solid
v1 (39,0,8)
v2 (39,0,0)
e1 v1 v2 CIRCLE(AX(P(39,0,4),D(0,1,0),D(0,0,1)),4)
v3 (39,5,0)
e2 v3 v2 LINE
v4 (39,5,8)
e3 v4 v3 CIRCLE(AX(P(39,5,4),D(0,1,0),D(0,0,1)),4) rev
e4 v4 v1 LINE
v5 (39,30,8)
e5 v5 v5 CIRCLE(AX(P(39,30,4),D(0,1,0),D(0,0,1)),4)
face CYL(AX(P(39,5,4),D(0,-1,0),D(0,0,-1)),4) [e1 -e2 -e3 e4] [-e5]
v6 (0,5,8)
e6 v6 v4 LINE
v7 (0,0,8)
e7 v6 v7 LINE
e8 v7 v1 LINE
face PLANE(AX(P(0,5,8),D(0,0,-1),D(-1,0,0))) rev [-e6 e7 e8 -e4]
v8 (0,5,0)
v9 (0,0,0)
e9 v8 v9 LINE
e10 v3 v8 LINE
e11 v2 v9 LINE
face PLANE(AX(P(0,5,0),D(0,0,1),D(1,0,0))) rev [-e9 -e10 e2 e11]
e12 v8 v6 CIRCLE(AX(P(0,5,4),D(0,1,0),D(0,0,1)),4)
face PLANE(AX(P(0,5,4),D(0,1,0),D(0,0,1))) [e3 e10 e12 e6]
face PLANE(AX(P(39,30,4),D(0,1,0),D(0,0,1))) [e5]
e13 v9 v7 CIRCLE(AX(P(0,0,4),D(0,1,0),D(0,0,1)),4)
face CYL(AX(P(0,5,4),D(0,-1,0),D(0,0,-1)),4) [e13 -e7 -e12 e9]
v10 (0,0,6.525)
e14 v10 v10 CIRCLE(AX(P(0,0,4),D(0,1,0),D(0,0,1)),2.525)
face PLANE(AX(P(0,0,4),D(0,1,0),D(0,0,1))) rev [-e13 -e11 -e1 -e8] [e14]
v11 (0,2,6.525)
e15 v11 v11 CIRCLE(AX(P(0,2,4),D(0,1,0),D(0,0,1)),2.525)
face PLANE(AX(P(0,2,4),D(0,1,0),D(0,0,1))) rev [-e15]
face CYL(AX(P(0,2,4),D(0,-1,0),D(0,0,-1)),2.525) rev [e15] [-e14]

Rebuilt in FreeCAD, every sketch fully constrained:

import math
import FreeCAD as App
import Part
import Sketcher

doc = App.newDocument("Part")
body = doc.addObject("PartDesign::Body", "Body")

# Sketch on XZ plane
sketch1 = doc.addObject("Sketcher::SketchObject", "Sketch")
body.addObject(sketch1)
sketch1.AttachmentSupport = (doc.XZ_Plane, [""])
sketch1.MapMode = "FlatFace"
sketch1.addGeometry([
    Part.LineSegment(App.Vector(39, 0, 0), App.Vector(0, 0, 0)),
    Part.ArcOfCircle(Part.Circle(App.Vector(0, 4, 0), App.Vector(0, 0, 1), 4), math.radians(89.999997), math.radians(270)),
    Part.LineSegment(App.Vector(0, 8, 0), App.Vector(39, 8, 0)),
    Part.ArcOfCircle(Part.Circle(App.Vector(39, 4, 0), App.Vector(0, 0, 1), 4), math.radians(-90.000003), math.radians(90)),
], False)
sketch1.addConstraint([
    Sketcher.Constraint("Tangent", 0, 2, 1, 2),
    Sketcher.Constraint("Tangent", 1, 1, 2, 1),
    Sketcher.Constraint("Tangent", 2, 2, 3, 2),
    Sketcher.Constraint("Tangent", 3, 1, 0, 1),
    Sketcher.Constraint("Horizontal", 0),
    Sketcher.Constraint("Horizontal", 2),
    Sketcher.Constraint("Coincident", 0, 2, -1, 1),
    Sketcher.Constraint("Radius", 1, 4.0),
    Sketcher.Constraint("DistanceX", 0, 2, 0, 1, 39.0),
])
pad1 = doc.addObject("PartDesign::Pad", "Pad")
body.addObject(pad1)
pad1.Profile = sketch1
pad1.Length = 5
pad1.Reversed = True

# Sketch on XZ plane
sketch2 = doc.addObject("Sketcher::SketchObject", "Sketch001")
body.addObject(sketch2)
sketch2.AttachmentSupport = (doc.XZ_Plane, [""])
sketch2.MapMode = "FlatFace"
sketch2.addGeometry(Part.Circle(App.Vector(0, 4, 0), App.Vector(0, 0, 1), 2.525), False)
sketch2.addConstraint([
    Sketcher.Constraint("PointOnObject", 0, 3, -2),
    Sketcher.Constraint("Diameter", 0, 5.05),
    Sketcher.Constraint("DistanceY", -1, 1, 0, 3, 4.0),
])
pocket1 = doc.addObject("PartDesign::Pocket", "Pocket")
body.addObject(pocket1)
pocket1.Profile = sketch2
pocket1.Length = 2

# Sketch on XZ plane
sketch3 = doc.addObject("Sketcher::SketchObject", "Sketch002")
body.addObject(sketch3)
sketch3.AttachmentSupport = (doc.XZ_Plane, [""])
sketch3.MapMode = "FlatFace"
sketch3.addGeometry(Part.Circle(App.Vector(39, 4, 0), App.Vector(0, 0, 1), 4), False)
sketch3.addConstraint([
    Sketcher.Constraint("Diameter", 0, 8.0),
    Sketcher.Constraint("DistanceX", -1, 1, 0, 3, 39.0),
    Sketcher.Constraint("DistanceY", -1, 1, 0, 3, 4.0),
])
pad2 = doc.addObject("PartDesign::Pad", "Pad001")
body.addObject(pad2)
pad2.Profile = sketch3
pad2.Length = 30
pad2.Reversed = True

doc.recompute()
